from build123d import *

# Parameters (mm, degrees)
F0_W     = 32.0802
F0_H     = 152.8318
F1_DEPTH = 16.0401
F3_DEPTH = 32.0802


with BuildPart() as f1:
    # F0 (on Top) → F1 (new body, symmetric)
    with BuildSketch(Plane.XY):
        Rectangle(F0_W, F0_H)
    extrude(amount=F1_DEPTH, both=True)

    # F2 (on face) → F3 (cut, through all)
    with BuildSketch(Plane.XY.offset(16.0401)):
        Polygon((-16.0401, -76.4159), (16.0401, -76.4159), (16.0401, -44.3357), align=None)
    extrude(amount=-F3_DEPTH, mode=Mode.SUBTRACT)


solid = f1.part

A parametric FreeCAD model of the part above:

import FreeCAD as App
import Part
import Sketcher

V = App.Vector
Q = App.Units.Quantity


def add_polygon(sketch, points):
    """Adds a closed chain of lines whose ends are joined by coincident constraints."""
    first, n = sketch.GeometryCount, len(points)
    for a, b in zip(points, points[1:] + points[:1]):
        sketch.addGeometry(Part.LineSegment(App.Vector(*a, 0), App.Vector(*b, 0)), False)
    for i in range(n):
        sketch.addConstraint(Sketcher.Constraint("Coincident", first + i, 2, first + (i + 1) % n, 1))

doc = App.newDocument("Part")
body = doc.addObject("PartDesign::Body", "Body")

sketch1 = body.newObject("Sketcher::SketchObject", "Sketch")
sketch1.AttachmentSupport = (doc.getObject("XY_Plane"), [""])
sketch1.MapMode = "FlatFace"
add_polygon(sketch1, [(-16, 76), (-16, -76), (16, -76), (16, 76)])
sketch1.addConstraint([
    Sketcher.Constraint("Vertical", 0),
    Sketcher.Constraint("Horizontal", 1),
    Sketcher.Constraint("Vertical", 2),
    Sketcher.Constraint("Horizontal", 3),
    Sketcher.Constraint("Symmetric", 0, 2, 2, 2, -1, 1),
    Sketcher.Constraint("DistanceX", 1, 1, 1, 2, Q("1.263 in")),
    Sketcher.Constraint("DistanceY", 0, 2, 0, 1, Q("6.017 in")),
])
pad1 = body.newObject("PartDesign::Pad", "Pad")
pad1.Profile = sketch1
pad1.Length = Q("1.263 in")
pad1.Midplane = True

sketch2 = body.newObject("Sketcher::SketchObject", "Sketch001")
sketch2.AttachmentSupport = (doc.getObject("XY_Plane"), [""])
sketch2.MapMode = "FlatFace"
sketch2.AttachmentOffset = App.Placement(V(0, 0, 0.6315 * 25.4), App.Rotation())
add_polygon(sketch2, [(-16, -76), (16, -76), (16, -44)])
sketch2.addConstraint([
    Sketcher.Constraint("Horizontal", 0),
    Sketcher.Constraint("Vertical", 1),
    Sketcher.Constraint("Equal", 0, 1),
    Sketcher.Constraint("DistanceX", 0, 1, 0, 2, Q("1.263 in")),
    Sketcher.Constraint("DistanceX", -1, 1, 0, 2, Q("0.6315 in")),
    Sketcher.Constraint("DistanceY", 0, 2, -1, 1, Q("3.0085 in")),
])
pocket1 = body.newObject("PartDesign::Pocket", "Pocket")
pocket1.Profile = sketch2
pocket1.Type = "ThroughAll"

doc.recompute()
